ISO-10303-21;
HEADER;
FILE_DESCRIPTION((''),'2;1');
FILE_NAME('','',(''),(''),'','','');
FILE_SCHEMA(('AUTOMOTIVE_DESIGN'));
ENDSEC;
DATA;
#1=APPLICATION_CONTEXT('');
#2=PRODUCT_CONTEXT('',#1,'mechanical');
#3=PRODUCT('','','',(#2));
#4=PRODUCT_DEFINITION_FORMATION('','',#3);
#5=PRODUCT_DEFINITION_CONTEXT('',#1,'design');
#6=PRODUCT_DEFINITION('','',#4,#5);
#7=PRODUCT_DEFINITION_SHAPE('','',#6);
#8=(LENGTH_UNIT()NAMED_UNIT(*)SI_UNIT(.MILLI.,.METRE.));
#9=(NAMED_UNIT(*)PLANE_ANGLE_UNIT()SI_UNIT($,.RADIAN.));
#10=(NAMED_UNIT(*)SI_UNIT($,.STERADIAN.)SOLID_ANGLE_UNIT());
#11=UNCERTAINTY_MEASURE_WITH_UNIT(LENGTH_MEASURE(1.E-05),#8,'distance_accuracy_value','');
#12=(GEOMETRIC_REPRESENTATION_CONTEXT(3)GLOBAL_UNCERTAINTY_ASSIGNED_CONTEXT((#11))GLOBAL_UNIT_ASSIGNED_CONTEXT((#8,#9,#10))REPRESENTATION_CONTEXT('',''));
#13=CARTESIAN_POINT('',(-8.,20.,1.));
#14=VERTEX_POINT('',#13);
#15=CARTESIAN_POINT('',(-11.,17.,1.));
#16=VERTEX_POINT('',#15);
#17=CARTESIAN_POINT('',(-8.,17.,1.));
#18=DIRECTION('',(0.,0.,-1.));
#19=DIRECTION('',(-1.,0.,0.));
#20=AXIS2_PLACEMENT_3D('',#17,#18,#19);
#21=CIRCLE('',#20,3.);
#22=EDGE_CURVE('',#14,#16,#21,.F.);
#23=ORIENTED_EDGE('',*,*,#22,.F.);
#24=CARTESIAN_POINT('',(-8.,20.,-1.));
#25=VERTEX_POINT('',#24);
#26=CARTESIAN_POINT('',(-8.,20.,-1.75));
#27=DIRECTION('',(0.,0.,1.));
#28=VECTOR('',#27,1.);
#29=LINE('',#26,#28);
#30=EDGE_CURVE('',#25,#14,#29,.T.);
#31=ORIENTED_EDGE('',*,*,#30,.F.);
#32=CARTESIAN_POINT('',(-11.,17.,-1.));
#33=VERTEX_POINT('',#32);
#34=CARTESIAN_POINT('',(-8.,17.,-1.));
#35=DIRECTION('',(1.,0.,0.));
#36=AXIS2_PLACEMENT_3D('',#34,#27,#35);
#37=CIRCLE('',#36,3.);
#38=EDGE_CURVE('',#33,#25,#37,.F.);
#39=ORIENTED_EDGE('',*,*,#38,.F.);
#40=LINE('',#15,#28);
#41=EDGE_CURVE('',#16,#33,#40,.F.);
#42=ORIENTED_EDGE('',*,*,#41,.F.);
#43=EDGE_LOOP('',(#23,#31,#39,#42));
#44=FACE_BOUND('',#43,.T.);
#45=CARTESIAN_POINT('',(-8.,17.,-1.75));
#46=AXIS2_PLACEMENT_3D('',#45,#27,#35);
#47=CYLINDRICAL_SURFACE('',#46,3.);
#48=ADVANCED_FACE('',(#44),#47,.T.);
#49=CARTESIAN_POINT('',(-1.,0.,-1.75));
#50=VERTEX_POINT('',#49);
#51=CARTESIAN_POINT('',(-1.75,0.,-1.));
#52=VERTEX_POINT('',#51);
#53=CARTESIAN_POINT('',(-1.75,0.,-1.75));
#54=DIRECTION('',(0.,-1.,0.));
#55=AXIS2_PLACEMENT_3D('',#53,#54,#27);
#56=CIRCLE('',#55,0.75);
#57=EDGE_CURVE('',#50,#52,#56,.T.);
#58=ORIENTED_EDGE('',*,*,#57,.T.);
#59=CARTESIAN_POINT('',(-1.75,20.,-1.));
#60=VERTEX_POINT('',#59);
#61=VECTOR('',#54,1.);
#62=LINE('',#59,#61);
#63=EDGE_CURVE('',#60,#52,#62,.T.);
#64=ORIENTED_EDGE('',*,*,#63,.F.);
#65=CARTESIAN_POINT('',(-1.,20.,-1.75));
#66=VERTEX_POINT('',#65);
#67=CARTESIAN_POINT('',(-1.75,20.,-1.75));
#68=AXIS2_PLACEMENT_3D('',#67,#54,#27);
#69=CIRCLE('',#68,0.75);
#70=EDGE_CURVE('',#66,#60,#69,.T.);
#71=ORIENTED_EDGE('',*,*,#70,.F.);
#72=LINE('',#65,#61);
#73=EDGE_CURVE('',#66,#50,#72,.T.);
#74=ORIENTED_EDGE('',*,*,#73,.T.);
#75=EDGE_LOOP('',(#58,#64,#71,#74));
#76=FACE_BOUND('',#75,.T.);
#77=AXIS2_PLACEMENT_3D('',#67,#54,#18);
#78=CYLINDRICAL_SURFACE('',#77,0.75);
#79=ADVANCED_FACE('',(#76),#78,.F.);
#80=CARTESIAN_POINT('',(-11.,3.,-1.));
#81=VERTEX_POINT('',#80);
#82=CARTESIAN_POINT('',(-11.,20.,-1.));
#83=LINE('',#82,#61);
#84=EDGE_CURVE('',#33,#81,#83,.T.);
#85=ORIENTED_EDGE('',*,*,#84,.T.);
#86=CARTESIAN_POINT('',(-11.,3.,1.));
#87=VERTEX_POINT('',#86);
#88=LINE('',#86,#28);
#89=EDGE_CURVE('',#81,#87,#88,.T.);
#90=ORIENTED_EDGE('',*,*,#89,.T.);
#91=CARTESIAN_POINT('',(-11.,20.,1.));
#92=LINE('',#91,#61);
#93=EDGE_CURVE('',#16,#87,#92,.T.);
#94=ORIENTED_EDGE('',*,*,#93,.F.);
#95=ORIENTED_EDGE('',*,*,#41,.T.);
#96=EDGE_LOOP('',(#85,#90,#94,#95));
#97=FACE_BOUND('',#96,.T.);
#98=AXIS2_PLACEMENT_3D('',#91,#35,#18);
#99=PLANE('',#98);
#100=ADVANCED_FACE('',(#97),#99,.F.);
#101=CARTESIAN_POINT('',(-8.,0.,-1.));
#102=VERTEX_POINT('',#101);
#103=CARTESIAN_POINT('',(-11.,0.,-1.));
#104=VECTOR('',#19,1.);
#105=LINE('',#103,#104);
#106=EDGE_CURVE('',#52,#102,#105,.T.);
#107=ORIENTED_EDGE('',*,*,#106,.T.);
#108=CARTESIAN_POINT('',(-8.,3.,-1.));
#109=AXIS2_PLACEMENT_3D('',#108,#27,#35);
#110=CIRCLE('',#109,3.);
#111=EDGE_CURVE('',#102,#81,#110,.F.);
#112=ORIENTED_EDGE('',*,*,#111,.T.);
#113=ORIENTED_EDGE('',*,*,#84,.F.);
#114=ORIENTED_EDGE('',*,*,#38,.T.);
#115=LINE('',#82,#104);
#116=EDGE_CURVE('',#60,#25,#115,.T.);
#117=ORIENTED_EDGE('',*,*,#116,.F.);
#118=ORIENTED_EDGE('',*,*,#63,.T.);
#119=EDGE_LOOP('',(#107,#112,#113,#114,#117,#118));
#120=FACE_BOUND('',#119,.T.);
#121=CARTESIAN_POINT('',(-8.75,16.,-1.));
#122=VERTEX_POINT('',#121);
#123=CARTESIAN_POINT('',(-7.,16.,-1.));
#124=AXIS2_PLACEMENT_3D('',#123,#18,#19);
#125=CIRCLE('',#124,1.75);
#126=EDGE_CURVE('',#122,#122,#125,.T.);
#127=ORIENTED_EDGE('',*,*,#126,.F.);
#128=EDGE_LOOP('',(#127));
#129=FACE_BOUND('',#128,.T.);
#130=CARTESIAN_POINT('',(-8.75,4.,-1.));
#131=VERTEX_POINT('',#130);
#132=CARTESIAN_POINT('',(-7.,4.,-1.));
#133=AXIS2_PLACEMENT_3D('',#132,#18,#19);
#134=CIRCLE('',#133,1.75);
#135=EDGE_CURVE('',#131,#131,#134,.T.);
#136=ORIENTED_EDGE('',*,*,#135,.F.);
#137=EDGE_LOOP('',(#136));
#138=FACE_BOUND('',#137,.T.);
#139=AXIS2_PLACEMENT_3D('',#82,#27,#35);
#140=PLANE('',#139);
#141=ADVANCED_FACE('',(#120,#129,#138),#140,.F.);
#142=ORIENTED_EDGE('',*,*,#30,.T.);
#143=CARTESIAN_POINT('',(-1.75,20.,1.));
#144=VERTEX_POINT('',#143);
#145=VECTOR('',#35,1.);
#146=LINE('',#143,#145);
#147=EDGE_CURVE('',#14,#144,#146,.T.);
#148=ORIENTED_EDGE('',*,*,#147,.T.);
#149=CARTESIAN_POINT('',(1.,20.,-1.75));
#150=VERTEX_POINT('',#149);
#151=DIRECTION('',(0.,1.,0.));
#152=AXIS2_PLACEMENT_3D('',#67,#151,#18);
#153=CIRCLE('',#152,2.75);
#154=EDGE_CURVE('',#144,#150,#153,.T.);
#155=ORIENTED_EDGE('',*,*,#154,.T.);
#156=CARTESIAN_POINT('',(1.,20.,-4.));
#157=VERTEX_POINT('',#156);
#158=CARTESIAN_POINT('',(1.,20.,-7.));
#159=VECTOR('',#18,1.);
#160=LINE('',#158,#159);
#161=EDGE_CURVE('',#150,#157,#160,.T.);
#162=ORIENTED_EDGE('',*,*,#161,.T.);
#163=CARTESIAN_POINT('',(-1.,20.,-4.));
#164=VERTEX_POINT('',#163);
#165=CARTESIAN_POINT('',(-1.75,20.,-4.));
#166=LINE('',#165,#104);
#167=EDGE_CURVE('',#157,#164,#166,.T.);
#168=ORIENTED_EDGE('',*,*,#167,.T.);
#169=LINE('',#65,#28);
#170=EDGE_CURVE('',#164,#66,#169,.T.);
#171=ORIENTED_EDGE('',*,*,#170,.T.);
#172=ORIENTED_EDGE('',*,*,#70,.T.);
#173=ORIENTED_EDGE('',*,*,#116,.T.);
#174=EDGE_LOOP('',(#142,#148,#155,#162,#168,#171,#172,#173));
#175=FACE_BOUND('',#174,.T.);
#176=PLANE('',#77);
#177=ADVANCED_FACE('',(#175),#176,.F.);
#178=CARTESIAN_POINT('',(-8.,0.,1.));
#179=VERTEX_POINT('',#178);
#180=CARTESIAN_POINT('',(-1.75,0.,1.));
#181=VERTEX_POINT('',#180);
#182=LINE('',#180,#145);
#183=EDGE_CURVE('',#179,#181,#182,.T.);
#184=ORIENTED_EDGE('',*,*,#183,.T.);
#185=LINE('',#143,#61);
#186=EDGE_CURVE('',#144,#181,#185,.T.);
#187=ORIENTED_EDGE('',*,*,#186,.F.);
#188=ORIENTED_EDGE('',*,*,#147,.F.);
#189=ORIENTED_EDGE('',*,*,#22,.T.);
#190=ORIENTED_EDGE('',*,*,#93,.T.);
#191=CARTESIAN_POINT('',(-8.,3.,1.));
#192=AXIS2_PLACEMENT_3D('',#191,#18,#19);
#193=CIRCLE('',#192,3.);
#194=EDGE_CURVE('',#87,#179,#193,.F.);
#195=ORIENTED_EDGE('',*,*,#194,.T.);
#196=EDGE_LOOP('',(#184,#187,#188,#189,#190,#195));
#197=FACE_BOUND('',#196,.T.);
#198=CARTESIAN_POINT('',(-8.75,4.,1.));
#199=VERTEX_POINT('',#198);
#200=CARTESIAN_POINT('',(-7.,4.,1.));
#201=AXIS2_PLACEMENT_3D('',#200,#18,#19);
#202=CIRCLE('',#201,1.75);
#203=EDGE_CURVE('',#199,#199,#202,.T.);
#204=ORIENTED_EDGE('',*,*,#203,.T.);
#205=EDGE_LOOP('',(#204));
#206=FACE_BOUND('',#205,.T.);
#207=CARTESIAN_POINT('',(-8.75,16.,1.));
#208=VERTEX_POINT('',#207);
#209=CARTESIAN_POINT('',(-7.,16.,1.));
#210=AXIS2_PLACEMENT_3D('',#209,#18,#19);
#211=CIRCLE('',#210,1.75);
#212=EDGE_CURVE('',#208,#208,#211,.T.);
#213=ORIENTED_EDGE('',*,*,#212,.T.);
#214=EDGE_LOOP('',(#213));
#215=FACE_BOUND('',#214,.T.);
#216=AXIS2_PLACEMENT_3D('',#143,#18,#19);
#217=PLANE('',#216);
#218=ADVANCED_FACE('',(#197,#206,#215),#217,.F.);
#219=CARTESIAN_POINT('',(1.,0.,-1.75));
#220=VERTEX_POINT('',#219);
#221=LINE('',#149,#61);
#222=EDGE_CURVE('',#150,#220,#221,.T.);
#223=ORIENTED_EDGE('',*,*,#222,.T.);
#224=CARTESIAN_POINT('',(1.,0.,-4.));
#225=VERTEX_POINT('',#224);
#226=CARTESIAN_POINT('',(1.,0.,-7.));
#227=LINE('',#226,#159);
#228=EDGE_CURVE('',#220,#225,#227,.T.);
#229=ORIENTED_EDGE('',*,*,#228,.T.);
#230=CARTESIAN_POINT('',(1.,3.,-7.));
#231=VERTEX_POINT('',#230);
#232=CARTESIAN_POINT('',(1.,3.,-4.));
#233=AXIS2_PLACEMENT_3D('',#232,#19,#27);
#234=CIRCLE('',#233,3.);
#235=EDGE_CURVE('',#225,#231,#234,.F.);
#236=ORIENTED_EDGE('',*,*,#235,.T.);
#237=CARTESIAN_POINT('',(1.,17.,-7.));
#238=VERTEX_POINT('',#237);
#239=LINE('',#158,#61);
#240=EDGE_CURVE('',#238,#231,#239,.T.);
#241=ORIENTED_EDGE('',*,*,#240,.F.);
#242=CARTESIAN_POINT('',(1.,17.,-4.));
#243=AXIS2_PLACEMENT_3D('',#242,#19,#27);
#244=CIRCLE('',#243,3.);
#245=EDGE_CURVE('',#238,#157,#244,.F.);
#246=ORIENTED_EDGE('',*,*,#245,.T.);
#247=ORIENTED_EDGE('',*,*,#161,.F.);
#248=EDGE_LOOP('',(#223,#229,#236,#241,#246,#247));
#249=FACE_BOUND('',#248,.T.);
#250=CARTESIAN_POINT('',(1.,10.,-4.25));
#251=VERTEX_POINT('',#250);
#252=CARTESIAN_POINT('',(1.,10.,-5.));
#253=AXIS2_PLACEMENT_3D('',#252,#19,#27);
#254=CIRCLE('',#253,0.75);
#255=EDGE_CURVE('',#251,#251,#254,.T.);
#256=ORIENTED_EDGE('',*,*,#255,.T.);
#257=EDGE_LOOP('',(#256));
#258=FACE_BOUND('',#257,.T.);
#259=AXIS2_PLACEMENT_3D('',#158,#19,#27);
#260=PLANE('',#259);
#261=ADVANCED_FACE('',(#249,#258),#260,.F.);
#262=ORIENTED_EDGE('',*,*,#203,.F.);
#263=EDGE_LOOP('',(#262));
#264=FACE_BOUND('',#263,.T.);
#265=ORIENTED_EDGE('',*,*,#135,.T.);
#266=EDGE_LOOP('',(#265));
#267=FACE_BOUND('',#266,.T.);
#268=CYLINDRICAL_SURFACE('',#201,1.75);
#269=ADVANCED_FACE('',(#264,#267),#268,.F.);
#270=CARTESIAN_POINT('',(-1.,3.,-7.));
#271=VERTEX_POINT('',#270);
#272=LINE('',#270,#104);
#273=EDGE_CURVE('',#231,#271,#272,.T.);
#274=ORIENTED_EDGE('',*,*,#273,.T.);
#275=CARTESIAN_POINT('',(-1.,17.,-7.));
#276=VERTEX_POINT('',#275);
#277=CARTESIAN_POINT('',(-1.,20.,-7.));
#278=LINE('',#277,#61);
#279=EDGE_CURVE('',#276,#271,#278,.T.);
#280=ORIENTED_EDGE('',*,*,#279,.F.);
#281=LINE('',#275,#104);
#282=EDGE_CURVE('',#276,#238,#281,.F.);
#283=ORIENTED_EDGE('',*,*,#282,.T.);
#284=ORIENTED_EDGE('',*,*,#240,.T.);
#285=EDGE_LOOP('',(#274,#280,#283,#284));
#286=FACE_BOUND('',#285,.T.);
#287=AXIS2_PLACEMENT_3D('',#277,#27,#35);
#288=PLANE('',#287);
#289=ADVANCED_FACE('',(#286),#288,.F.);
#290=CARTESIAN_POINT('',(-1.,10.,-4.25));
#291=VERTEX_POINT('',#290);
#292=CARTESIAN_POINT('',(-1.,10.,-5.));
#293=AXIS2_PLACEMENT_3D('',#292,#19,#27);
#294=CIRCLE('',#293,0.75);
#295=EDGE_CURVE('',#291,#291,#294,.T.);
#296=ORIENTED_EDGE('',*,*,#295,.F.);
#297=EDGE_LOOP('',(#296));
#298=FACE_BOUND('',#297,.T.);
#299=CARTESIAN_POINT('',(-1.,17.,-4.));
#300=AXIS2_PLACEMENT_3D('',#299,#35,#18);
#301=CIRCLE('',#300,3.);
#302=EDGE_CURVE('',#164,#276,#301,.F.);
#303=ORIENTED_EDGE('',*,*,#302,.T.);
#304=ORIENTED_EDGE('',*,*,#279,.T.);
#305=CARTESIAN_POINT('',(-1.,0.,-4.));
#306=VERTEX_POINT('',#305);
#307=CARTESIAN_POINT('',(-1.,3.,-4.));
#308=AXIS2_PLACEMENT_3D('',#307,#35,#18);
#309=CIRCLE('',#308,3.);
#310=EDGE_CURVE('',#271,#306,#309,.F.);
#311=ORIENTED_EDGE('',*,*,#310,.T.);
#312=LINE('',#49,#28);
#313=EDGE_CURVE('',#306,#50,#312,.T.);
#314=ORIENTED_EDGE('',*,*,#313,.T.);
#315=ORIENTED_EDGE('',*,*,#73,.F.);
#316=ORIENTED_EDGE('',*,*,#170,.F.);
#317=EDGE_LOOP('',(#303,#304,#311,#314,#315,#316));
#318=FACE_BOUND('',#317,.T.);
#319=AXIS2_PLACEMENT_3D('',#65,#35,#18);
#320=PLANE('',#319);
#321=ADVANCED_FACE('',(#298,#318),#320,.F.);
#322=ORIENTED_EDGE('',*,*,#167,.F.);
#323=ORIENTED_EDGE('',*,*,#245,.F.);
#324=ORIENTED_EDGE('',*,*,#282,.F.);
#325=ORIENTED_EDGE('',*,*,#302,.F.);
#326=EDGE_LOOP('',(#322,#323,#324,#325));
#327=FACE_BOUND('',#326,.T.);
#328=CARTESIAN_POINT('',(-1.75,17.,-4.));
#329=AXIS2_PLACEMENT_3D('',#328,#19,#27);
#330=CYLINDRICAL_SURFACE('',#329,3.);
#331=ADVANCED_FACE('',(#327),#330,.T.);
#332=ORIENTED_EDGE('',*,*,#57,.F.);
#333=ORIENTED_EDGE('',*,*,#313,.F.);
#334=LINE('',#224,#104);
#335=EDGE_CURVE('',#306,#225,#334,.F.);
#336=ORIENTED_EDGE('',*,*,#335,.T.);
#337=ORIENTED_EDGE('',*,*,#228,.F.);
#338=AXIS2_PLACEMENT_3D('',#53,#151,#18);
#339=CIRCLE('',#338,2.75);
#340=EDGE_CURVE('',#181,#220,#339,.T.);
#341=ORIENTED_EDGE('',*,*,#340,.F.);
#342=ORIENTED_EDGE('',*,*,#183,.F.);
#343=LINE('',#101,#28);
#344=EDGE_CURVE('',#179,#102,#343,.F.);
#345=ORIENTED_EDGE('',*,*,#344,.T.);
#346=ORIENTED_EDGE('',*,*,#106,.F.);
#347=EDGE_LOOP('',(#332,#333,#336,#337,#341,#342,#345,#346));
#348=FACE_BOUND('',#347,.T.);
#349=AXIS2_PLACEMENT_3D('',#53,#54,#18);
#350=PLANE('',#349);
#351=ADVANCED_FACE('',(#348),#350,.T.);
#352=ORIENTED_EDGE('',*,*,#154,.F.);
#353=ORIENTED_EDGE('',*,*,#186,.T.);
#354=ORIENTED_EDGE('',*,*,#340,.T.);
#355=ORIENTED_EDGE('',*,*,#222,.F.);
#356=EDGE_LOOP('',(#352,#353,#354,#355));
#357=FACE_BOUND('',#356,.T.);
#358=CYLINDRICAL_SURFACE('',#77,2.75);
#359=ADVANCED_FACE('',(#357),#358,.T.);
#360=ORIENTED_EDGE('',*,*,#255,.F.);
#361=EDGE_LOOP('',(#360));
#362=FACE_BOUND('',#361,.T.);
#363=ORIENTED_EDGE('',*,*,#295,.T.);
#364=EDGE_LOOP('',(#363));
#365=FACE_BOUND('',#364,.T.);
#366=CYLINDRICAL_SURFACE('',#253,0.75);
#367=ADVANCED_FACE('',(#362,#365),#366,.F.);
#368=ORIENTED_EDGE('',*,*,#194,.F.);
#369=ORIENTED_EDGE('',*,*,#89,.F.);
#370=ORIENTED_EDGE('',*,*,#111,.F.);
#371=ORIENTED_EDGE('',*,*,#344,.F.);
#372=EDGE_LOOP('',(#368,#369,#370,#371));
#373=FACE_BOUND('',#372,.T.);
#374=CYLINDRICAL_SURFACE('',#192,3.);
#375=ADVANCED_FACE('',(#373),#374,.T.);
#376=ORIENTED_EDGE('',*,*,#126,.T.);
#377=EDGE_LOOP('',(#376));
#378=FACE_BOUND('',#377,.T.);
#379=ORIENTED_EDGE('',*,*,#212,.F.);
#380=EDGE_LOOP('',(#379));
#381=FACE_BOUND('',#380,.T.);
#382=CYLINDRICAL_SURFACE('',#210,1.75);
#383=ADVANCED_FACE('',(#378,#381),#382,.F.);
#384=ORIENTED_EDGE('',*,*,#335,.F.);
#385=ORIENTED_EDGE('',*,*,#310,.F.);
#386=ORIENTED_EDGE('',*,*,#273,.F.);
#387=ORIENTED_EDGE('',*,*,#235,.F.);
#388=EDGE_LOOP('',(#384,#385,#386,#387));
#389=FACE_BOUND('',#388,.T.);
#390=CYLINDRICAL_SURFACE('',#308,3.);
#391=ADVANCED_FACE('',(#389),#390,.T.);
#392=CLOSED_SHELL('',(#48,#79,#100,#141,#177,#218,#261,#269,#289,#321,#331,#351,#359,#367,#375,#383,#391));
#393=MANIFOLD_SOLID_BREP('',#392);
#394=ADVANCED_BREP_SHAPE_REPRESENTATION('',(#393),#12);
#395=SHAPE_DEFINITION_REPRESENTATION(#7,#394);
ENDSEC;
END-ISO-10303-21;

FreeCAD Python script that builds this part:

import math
import FreeCAD as App
import Part
import Sketcher
Q = App.Units.Quantity


def edges_at(feature, points):
    """Names of the edges that pass closest to the given points."""
    edges = feature.Shape.Edges
    near = lambda p: min(range(len(edges)), key=lambda i: edges[i].distToShape(Part.Vertex(*p))[0])
    return sorted({f"Edge{near(p) + 1}" for p in points})

doc = App.newDocument("Part")
body = doc.addObject("PartDesign::Body", "Body")

# Sketch on XZ plane
sketch1 = body.newObject("Sketcher::SketchObject", "Sketch")
sketch1.AttachmentSupport = (doc.getObject("XZ_Plane"), [""])
sketch1.MapMode = "FlatFace"
sketch1.addGeometry(Part.LineSegment(App.Vector(1, -7, 0), App.Vector(-1, -7, 0)), False)
sketch1.addGeometry(Part.LineSegment(App.Vector(-1, -7, 0), App.Vector(-1, -1.8, 0)), False)
sketch1.addGeometry(Part.ArcOfCircle(Part.Circle(App.Vector(-1.8, -1.8, 0), App.Vector(0, 0, 1), 0.8), math.radians(0), math.radians(90)), False)
sketch1.addGeometry(Part.LineSegment(App.Vector(-1.8, -1, 0), App.Vector(-11, -1, 0)), False)
sketch1.addGeometry(Part.LineSegment(App.Vector(-11, -1, 0), App.Vector(-11, 1, 0)), False)
sketch1.addGeometry(Part.LineSegment(App.Vector(-11, 1, 0), App.Vector(-1.8, 1, 0)), False)
sketch1.addGeometry(Part.ArcOfCircle(Part.Circle(App.Vector(-1.8, -1.8, 0), App.Vector(0, 0, 1), 2.8), math.radians(0), math.radians(90)), False)
sketch1.addGeometry(Part.LineSegment(App.Vector(1, -1.8, 0), App.Vector(1, -7, 0)), False)
sketch1.addConstraint(Sketcher.Constraint("Coincident", 0, 2, 1, 1))
sketch1.addConstraint(Sketcher.Constraint("Tangent", 1, 2, 2, 1))
sketch1.addConstraint(Sketcher.Constraint("Tangent", 2, 2, 3, 1))
sketch1.addConstraint(Sketcher.Constraint("Coincident", 3, 2, 4, 1))
sketch1.addConstraint(Sketcher.Constraint("Coincident", 4, 2, 5, 1))
sketch1.addConstraint(Sketcher.Constraint("Tangent", 5, 2, 6, 2))
sketch1.addConstraint(Sketcher.Constraint("Tangent", 6, 1, 7, 1))
sketch1.addConstraint(Sketcher.Constraint("Coincident", 7, 2, 0, 1))
sketch1.addConstraint(Sketcher.Constraint("Horizontal", 0))
sketch1.addConstraint(Sketcher.Constraint("Vertical", 1))
sketch1.addConstraint(Sketcher.Constraint("Horizontal", 3))
sketch1.addConstraint(Sketcher.Constraint("Vertical", 4))
sketch1.addConstraint(Sketcher.Constraint("Horizontal", 5))
sketch1.addConstraint(Sketcher.Constraint("Vertical", 7))
sketch1.addConstraint(Sketcher.Constraint("Coincident", 6, 3, 2, 3))
sketch1.addConstraint(Sketcher.Constraint("DistanceX", 0, 2, 0, 1, Q("2 mm")))
sketch1.addConstraint(Sketcher.Constraint("Radius", 2, Q("0.75 mm")))
sketch1.addConstraint(Sketcher.Constraint("DistanceX", 0, 2, -1, 1, Q("1 mm")))
sketch1.addConstraint(Sketcher.Constraint("DistanceY", 0, 2, -1, 1, Q("7 mm")))
sketch1.addConstraint(Sketcher.Constraint("DistanceY", 2, 2, -1, 1, Q("1 mm")))
sketch1.addConstraint(Sketcher.Constraint("DistanceX", 3, 2, -1, 1, Q("11 mm")))
pad1 = body.newObject("PartDesign::Pad", "Pad")
pad1.Profile = sketch1
pad1.Length = 20
pad1.Reversed = True
doc.recompute()

fillet = body.newObject("PartDesign::Fillet", "Fillet")
fillet.Base = (pad1, edges_at(pad1, [
    (-11, 0, 0),
    (-11, 20, 0),
    (0, 20, -7),
    (0, 0, -7),
]))
fillet.Radius = 3

# Sketch on XY plane
sketch2 = body.newObject("Sketcher::SketchObject", "Sketch001")
sketch2.AttachmentSupport = (doc.getObject("XY_Plane"), [""])
sketch2.MapMode = "FlatFace"
sketch2.AttachmentOffset = App.Placement(App.Vector(0, 0, -1), App.Rotation())
sketch2.addGeometry(Part.Circle(App.Vector(-7, 16, 0), App.Vector(0, 0, 1), 1.8), False)
sketch2.addGeometry(Part.Circle(App.Vector(-7, 4, 0), App.Vector(0, 0, 1), 1.8), False)
sketch2.addConstraint(Sketcher.Constraint("Equal", 0, 1))
sketch2.addConstraint(Sketcher.Constraint("Vertical", 0, 3, 1, 3))
sketch2.addConstraint(Sketcher.Constraint("Diameter", 0, Q("3.5 mm")))
sketch2.addConstraint(Sketcher.Constraint("DistanceX", 0, 3, -1, 1, Q("7 mm")))
sketch2.addConstraint(Sketcher.Constraint("DistanceY", -1, 1, 0, 3, Q("16 mm")))
sketch2.addConstraint(Sketcher.Constraint("DistanceY", -1, 1, 1, 3, Q("4 mm")))
pocket1 = body.newObject("PartDesign::Pocket", "Pocket")
pocket1.Profile = sketch2
pocket1.Type = "ThroughAll"
pocket1.Reversed = True

# Sketch on YZ plane
sketch3 = body.newObject("Sketcher::SketchObject", "Sketch002")
sketch3.AttachmentSupport = (doc.getObject("YZ_Plane"), [""])
sketch3.MapMode = "FlatFace"
sketch3.AttachmentOffset = App.Placement(App.Vector(0, 0, -1), App.Rotation())
sketch3.addGeometry(Part.Circle(App.Vector(10, -5, 0), App.Vector(0, 0, 1), 0.8), False)
sketch3.addConstraint(Sketcher.Constraint("Diameter", 0, Q("1.5 mm")))
sketch3.addConstraint(Sketcher.Constraint("DistanceX", -1, 1, 0, 3, Q("10 mm")))
sketch3.addConstraint(Sketcher.Constraint("DistanceY", 0, 3, -1, 1, Q("5 mm")))
pocket2 = body.newObject("PartDesign::Pocket", "Pocket001")
pocket2.Profile = sketch3
pocket2.Type = "ThroughAll"
pocket2.Reversed = True

doc.recompute()
